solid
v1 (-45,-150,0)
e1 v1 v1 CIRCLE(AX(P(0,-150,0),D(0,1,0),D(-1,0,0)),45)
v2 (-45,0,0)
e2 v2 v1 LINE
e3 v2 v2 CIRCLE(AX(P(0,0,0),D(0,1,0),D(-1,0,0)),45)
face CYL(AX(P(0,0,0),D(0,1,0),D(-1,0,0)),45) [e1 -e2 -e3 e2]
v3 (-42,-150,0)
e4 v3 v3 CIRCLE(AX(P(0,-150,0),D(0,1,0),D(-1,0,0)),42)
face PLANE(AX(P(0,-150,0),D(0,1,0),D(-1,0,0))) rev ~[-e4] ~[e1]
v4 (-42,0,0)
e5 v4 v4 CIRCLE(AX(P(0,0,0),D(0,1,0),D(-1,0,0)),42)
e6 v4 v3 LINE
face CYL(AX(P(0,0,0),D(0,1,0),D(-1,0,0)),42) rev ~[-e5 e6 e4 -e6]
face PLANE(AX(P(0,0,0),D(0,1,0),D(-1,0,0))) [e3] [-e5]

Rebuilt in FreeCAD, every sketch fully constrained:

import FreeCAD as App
import Part
import Sketcher

V = App.Vector
Q = App.Units.Quantity

doc = App.newDocument("Part")
params = doc.addObject("Spreadsheet::Sheet", "Params")
for row, (alias, value) in enumerate([
    ("sketch1_diameter", "90 mm"),
    ("sketch1_diameter2", "84 mm"),
    ("pad1_length", "150 mm"),
], start=1):
    params.set(f"A{row}", alias)
    params.set(f"B{row}", "=" + value)
    params.setAlias(f"B{row}", alias)

body = doc.addObject("PartDesign::Body", "Body")

sketch1 = body.newObject("Sketcher::SketchObject", "Sketch")
sketch1.AttachmentSupport = (doc.getObject("XZ_Plane"), [""])
sketch1.MapMode = "FlatFace"
sketch1.addGeometry(Part.Circle(V(0, 0, 0), V(0, 0, 1), 45), False)
sketch1.addGeometry(Part.Circle(V(0, 0, 0), V(0, 0, 1), 42), False)
sketch1.addConstraint(Sketcher.Constraint("Coincident", 0, 3, -1, 1))
sketch1.addConstraint(Sketcher.Constraint("Coincident", 1, 3, -1, 1))
sketch1.addConstraint(Sketcher.Constraint("Diameter", 0, Q("90 mm")))
sketch1.addConstraint(Sketcher.Constraint("Diameter", 1, Q("84 mm")))
sketch1.setExpression("Constraints[2]", "Params.sketch1_diameter")
sketch1.setExpression("Constraints[3]", "Params.sketch1_diameter2")
pad1 = body.newObject("PartDesign::Pad", "Pad")
pad1.Profile = sketch1
pad1.setExpression("Length", "Params.pad1_length")

doc.recompute()
